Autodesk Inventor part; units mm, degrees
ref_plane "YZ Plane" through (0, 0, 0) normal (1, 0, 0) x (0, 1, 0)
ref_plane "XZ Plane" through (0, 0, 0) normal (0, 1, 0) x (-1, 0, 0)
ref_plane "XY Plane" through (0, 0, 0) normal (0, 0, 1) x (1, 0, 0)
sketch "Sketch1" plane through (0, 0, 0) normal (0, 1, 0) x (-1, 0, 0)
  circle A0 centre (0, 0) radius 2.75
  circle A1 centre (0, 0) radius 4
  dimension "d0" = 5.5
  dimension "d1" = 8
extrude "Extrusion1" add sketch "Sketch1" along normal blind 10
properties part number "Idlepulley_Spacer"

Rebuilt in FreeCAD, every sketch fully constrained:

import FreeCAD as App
import Part
import Sketcher

doc = App.newDocument("Part")
body = doc.addObject("PartDesign::Body", "Body")

# Sketch on XZ plane
sketch1 = body.newObject("Sketcher::SketchObject", "Sketch")
sketch1.AttachmentSupport = (doc.getObject("XZ_Plane"), [""])
sketch1.MapMode = "FlatFace"
sketch1.addGeometry([
    Part.Circle(App.Vector(0, 0, 0), App.Vector(0, 0, 1), 4),
    Part.Circle(App.Vector(0, 0, 0), App.Vector(0, 0, 1), 2.8),
], False)
sketch1.addConstraint([
    Sketcher.Constraint("Coincident", 0, 3, -1, 1),
    Sketcher.Constraint("Coincident", 1, 3, -1, 1),
    Sketcher.Constraint("Diameter", 0, 8.0),
    Sketcher.Constraint("Diameter", 1, 5.5),
])
pad1 = body.newObject("PartDesign::Pad", "Pad")
pad1.Profile = sketch1
pad1.Length = 10
pad1.Reversed = True

doc.recompute()
